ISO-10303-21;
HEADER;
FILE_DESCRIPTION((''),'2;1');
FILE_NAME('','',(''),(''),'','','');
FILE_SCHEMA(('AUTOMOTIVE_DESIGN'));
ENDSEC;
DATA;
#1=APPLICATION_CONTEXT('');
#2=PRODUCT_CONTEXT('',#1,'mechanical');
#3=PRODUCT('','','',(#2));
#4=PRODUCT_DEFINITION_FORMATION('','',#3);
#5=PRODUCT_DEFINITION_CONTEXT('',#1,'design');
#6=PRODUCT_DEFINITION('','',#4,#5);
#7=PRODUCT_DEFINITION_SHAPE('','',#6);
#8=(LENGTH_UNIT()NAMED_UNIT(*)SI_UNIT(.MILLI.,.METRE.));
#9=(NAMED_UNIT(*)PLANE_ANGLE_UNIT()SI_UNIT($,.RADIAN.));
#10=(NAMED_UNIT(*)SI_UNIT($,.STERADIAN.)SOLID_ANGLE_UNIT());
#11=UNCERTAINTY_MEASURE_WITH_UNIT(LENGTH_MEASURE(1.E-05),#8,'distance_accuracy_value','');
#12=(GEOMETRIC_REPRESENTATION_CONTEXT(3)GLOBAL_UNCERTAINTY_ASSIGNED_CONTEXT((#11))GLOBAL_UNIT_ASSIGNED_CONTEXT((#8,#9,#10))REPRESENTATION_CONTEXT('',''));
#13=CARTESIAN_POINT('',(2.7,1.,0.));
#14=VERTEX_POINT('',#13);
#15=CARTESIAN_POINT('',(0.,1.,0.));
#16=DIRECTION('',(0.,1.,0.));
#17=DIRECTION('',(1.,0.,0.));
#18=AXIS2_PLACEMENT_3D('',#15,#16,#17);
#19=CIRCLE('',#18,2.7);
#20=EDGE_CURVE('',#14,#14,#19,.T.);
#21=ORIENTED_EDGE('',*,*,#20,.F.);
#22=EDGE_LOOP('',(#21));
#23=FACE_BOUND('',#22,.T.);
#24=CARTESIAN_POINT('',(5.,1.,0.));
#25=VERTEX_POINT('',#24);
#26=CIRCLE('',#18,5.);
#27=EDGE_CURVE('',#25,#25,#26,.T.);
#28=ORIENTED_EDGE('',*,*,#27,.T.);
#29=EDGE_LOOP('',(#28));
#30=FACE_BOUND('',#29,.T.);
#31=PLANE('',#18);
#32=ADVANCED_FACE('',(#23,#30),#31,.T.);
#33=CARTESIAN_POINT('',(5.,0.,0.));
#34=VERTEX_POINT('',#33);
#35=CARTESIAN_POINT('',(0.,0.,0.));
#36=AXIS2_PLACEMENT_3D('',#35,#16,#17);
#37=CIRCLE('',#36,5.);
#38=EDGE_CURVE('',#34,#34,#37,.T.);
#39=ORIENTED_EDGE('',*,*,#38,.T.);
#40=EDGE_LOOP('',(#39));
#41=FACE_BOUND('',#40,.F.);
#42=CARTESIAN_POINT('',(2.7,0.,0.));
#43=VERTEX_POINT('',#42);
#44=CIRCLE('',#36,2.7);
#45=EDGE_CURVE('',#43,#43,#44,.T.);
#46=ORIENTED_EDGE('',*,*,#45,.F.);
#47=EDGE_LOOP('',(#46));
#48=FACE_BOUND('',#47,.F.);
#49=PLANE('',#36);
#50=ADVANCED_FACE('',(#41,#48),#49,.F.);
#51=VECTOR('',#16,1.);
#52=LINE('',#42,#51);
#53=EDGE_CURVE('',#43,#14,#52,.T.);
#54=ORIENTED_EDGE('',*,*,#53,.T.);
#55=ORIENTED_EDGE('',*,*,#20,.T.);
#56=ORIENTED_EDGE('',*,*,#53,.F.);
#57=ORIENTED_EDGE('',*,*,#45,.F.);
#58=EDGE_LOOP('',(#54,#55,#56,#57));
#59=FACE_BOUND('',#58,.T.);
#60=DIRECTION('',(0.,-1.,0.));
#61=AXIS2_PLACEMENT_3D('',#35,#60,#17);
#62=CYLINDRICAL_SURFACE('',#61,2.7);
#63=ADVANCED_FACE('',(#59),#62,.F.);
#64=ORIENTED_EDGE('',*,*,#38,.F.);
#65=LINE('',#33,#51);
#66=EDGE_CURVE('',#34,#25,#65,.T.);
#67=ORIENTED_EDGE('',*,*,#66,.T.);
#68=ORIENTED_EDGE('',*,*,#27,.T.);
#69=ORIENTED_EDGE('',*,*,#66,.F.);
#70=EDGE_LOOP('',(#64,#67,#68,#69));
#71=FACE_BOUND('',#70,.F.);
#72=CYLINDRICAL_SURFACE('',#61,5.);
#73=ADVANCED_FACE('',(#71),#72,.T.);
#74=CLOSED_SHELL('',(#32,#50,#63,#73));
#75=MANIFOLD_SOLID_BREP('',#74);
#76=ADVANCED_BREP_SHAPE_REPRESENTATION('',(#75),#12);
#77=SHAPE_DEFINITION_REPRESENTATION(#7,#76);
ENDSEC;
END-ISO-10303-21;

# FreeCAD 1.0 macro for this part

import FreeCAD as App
import Part
import Sketcher

V = App.Vector

doc = App.newDocument("Part")
body = doc.addObject("PartDesign::Body", "Body")

sketch1 = body.newObject("Sketcher::SketchObject", "Sketch")
sketch1.AttachmentSupport = (doc.getObject("XZ_Plane"), [""])
sketch1.MapMode = "FlatFace"
sketch1.addGeometry(Part.Circle(V(0, 0, 0), V(0, 0, 1), 5), False)
sketch1.addGeometry(Part.Circle(V(0, 0, 0), V(0, 0, 1), 2.7), False)
sketch1.addConstraint(Sketcher.Constraint("Coincident", 0, 3, -1, 1))
sketch1.addConstraint(Sketcher.Constraint("Coincident", 1, 3, -1, 1))
sketch1.addConstraint(Sketcher.Constraint("Diameter", 0, 10.0))
sketch1.addConstraint(Sketcher.Constraint("Diameter", 1, 5.4))
pad1 = body.newObject("PartDesign::Pad", "Pad")
pad1.Profile = sketch1
pad1.Length = 1
pad1.Reversed = True

doc.recompute()
